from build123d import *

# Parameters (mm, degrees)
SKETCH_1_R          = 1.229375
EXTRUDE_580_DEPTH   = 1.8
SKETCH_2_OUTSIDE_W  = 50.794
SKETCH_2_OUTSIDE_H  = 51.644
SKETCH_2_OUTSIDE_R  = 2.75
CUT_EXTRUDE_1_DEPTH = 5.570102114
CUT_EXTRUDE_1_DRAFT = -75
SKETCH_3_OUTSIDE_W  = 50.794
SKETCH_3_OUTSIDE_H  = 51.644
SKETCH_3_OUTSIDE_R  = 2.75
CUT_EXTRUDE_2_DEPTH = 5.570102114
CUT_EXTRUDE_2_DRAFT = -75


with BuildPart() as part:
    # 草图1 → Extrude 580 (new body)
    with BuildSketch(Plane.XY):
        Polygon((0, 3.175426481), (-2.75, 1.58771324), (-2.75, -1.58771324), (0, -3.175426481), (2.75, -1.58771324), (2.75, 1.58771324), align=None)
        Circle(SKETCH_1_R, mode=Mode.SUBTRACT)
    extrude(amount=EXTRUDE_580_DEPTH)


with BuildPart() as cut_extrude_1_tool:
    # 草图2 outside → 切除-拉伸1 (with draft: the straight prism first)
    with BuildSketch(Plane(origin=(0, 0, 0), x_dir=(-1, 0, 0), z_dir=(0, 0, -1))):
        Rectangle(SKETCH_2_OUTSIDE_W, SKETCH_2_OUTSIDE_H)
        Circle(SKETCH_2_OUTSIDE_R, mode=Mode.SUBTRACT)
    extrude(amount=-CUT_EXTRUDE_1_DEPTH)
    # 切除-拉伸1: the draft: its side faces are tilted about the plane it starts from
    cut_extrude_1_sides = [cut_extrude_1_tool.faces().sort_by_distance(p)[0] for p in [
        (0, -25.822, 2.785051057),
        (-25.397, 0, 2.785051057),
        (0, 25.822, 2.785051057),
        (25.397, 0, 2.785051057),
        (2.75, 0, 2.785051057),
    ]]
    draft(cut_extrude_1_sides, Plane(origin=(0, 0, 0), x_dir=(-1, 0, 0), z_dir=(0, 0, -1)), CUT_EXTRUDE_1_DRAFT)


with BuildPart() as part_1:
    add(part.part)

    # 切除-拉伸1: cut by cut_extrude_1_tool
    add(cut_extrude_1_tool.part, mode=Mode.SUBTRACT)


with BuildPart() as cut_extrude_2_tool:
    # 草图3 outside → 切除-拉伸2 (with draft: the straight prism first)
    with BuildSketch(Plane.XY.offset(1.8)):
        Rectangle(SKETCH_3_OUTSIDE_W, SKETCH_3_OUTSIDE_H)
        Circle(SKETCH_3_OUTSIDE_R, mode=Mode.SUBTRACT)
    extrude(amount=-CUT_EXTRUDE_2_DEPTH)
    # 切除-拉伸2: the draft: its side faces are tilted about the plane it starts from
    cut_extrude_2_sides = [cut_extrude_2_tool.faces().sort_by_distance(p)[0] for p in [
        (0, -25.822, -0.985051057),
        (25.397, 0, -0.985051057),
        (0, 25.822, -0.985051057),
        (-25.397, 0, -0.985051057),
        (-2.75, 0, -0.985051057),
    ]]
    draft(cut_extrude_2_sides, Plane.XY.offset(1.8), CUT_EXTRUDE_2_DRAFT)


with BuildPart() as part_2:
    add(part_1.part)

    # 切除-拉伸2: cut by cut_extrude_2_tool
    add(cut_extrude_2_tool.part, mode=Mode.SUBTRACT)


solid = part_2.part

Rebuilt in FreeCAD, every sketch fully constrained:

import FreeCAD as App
import Part
import Sketcher
from FreeCAD import Vector
Q = App.Units.Quantity


def faces_at(feature, points):
    """Names of the faces that lie closest to the given points."""
    faces = feature.Shape.Faces
    near = lambda p: min(range(len(faces)), key=lambda i: faces[i].distToShape(Part.Vertex(*p))[0])
    return sorted({f"Face{near(p) + 1}" for p in points})

doc = App.newDocument("Part")
params = doc.addObject("Spreadsheet::Sheet", "Params")
for row, (alias, value) in enumerate([
    ("pad1_length", "1.8 mm"),
    ("sketch2_diameter", "5.5 mm"),
    ("pad2_length", "5.570102 mm"),
    ("draft_angle", "75 deg"),
    ("sketch3_diameter", "5.5 mm"),
    ("pad3_length", "5.570102 mm"),
    ("draft2_angle", "75 deg"),
], start=1):
    params.set(f"A{row}", alias)
    params.set(f"B{row}", "=" + value)
    params.setAlias(f"B{row}", alias)

body = doc.addObject("PartDesign::Body", "Body")

# Sketch on XY plane
sketch1 = body.newObject("Sketcher::SketchObject", "Sketch")
sketch1.AttachmentSupport = (doc.getObject("XY_Plane"), [""])
sketch1.MapMode = "FlatFace"
sketch1.addGeometry([
    Part.LineSegment(Vector(0, 3.175426, 0), Vector(-2.75, 1.587713, 0)),  # 0
    Part.LineSegment(Vector(-2.75, 1.587713, 0), Vector(-2.75, -1.587713, 0)),  # 1
    Part.LineSegment(Vector(-2.75, -1.587713, 0), Vector(0, -3.175426, 0)),  # 2
    Part.LineSegment(Vector(0, -3.175426, 0), Vector(2.75, -1.587713, 0)),  # 3
    Part.LineSegment(Vector(2.75, -1.587713, 0), Vector(2.75, 1.587713, 0)),  # 4
    Part.LineSegment(Vector(2.75, 1.587713, 0), Vector(0, 3.175426, 0)),  # 5
    Part.Circle(Vector(0, 0, 0), Vector(0, 0, 1), 1.229375),  # 6
], False)
sketch1.addConstraint([
    Sketcher.Constraint("Coincident", 0, 2, 1, 1),
    Sketcher.Constraint("Coincident", 1, 2, 2, 1),
    Sketcher.Constraint("Coincident", 2, 2, 3, 1),
    Sketcher.Constraint("Coincident", 3, 2, 4, 1),
    Sketcher.Constraint("Coincident", 4, 2, 5, 1),
    Sketcher.Constraint("Coincident", 5, 2, 0, 1),
    Sketcher.Constraint("Vertical", 1),
    Sketcher.Constraint("Vertical", 4),
    Sketcher.Constraint("Coincident", 6, 3, -1, 1),
    Sketcher.Constraint("Symmetric", 0, 2, 3, 2, -1, 1),
    Sketcher.Constraint("Symmetric", 2, 2, 5, 2, -1, 1),
    Sketcher.Constraint("PointOnObject", 2, 2, -2),
    Sketcher.Constraint("Parallel", 2, 5),
    Sketcher.Constraint("Horizontal", 1, 2, 3, 2),
    Sketcher.Constraint("Angle", 0, Q("-150 deg")),
    Sketcher.Constraint("DistanceX", 1, 2, 3, 2, 5.5),
    Sketcher.Constraint("Diameter", 6, 2.45875),
    Sketcher.Constraint("DistanceY", 1, 2, 1, 1, 3.175426),
])
pad1 = body.newObject("PartDesign::Pad", "Pad")
pad1.Profile = sketch1
pad1.setExpression("Length", "Params.pad1_length")
body2 = doc.addObject("PartDesign::Body", "Body001")

# Sketch on XY plane
sketch2 = body2.newObject("Sketcher::SketchObject", "Sketch001")
sketch2.AttachmentSupport = (doc.getObject("XY_Plane001"), [""])
sketch2.MapMode = "FlatFace"
sketch2.addGeometry([
    Part.LineSegment(Vector(25.397, 25.822, 0), Vector(25.397, -25.822, 0)),  # 0
    Part.LineSegment(Vector(25.397, -25.822, 0), Vector(-25.397, -25.822, 0)),  # 1
    Part.LineSegment(Vector(-25.397, -25.822, 0), Vector(-25.397, 25.822, 0)),  # 2
    Part.LineSegment(Vector(-25.397, 25.822, 0), Vector(25.397, 25.822, 0)),  # 3
    Part.Circle(Vector(0, 0, 0), Vector(0, 0, 1), 2.75),  # 4
], False)
sketch2.addConstraint([
    Sketcher.Constraint("Coincident", 0, 2, 1, 1),
    Sketcher.Constraint("Coincident", 1, 2, 2, 1),
    Sketcher.Constraint("Coincident", 2, 2, 3, 1),
    Sketcher.Constraint("Coincident", 3, 2, 0, 1),
    Sketcher.Constraint("Vertical", 0),
    Sketcher.Constraint("Horizontal", 1),
    Sketcher.Constraint("Vertical", 2),
    Sketcher.Constraint("Horizontal", 3),
    Sketcher.Constraint("Coincident", 4, 3, -1, 1),
    Sketcher.Constraint("Symmetric", 0, 2, 2, 2, -1, 1),
    Sketcher.Constraint("Diameter", 4, 5.5),
    Sketcher.Constraint("DistanceX", 1, 2, 1, 1, 50.794),
    Sketcher.Constraint("DistanceY", 0, 2, 0, 1, 51.644),
])
sketch2.setExpression("Constraints[10]", "Params.sketch2_diameter")
pad2 = body2.newObject("PartDesign::Pad", "Pad001")
pad2.Profile = sketch2
pad2.setExpression("Length", "Params.pad2_length")
doc.recompute()

draft = body2.newObject("PartDesign::Draft", "Draft")
draft.Base = (pad2, faces_at(pad2, [
    (0, -25.822, 2.785),
    (-25.397, 0, 2.785),
    (0, 25.822, 2.785),
    (25.397, 0, 2.785),
    (2.75, 0, 2.785),
]))
draft.NeutralPlane = (doc.getObject("XY_Plane001"), [""])
draft.setExpression("Angle", "Params.draft_angle")
draft.Reversed = False
doc.recompute()

boolean = body.newObject("PartDesign::Boolean", "Boolean")
boolean.Type = "Cut"
boolean.addObjects([body2])
body3 = doc.addObject("PartDesign::Body", "Body002")

# Sketch on XY plane
sketch3 = body3.newObject("Sketcher::SketchObject", "Sketch002")
sketch3.AttachmentSupport = (doc.getObject("XY_Plane002"), [""])
sketch3.MapMode = "FlatFace"
sketch3.AttachmentOffset = App.Placement(Vector(0, 0, 1.8), App.Rotation())
sketch3.addGeometry([
    Part.LineSegment(Vector(-25.397, 25.822, 0), Vector(-25.397, -25.822, 0)),  # 0
    Part.LineSegment(Vector(-25.397, -25.822, 0), Vector(25.397, -25.822, 0)),  # 1
    Part.LineSegment(Vector(25.397, -25.822, 0), Vector(25.397, 25.822, 0)),  # 2
    Part.LineSegment(Vector(25.397, 25.822, 0), Vector(-25.397, 25.822, 0)),  # 3
    Part.Circle(Vector(0, 0, 0), Vector(0, 0, 1), 2.75),  # 4
], False)
sketch3.addConstraint([
    Sketcher.Constraint("Coincident", 0, 2, 1, 1),
    Sketcher.Constraint("Coincident", 1, 2, 2, 1),
    Sketcher.Constraint("Coincident", 2, 2, 3, 1),
    Sketcher.Constraint("Coincident", 3, 2, 0, 1),
    Sketcher.Constraint("Vertical", 0),
    Sketcher.Constraint("Horizontal", 1),
    Sketcher.Constraint("Vertical", 2),
    Sketcher.Constraint("Horizontal", 3),
    Sketcher.Constraint("Coincident", 4, 3, -1, 1),
    Sketcher.Constraint("Symmetric", 0, 2, 2, 2, -1, 1),
    Sketcher.Constraint("Diameter", 4, 5.5),
    Sketcher.Constraint("DistanceX", 1, 1, 1, 2, 50.794),
    Sketcher.Constraint("DistanceY", 0, 2, 0, 1, 51.644),
])
sketch3.setExpression("Constraints[10]", "Params.sketch3_diameter")
pad3 = body3.newObject("PartDesign::Pad", "Pad002")
pad3.Profile = sketch3
pad3.setExpression("Length", "Params.pad3_length")
pad3.Reversed = True
doc.recompute()

datumplane = body3.newObject("PartDesign::Plane", "DatumPlane")
datumplane.AttachmentSupport = (doc.getObject("XY_Plane002"), [""])
datumplane.MapMode = "FlatFace"
datumplane.AttachmentOffset = App.Placement(Vector(0, 0, 1.8), App.Rotation())
draft2 = body3.newObject("PartDesign::Draft", "Draft001")
draft2.Base = (pad3, faces_at(pad3, [
    (0, -25.822, -0.985),
    (25.397, 0, -0.985),
    (0, 25.822, -0.985),
    (-25.397, 0, -0.985),
    (-2.75, 0, -0.985),
]))
draft2.NeutralPlane = (datumplane, [""])
draft2.setExpression("Angle", "Params.draft2_angle")
draft2.Reversed = True
doc.recompute()

boolean2 = body.newObject("PartDesign::Boolean", "Boolean001")
boolean2.Type = "Cut"
boolean2.addObjects([body3])

doc.recompute()
